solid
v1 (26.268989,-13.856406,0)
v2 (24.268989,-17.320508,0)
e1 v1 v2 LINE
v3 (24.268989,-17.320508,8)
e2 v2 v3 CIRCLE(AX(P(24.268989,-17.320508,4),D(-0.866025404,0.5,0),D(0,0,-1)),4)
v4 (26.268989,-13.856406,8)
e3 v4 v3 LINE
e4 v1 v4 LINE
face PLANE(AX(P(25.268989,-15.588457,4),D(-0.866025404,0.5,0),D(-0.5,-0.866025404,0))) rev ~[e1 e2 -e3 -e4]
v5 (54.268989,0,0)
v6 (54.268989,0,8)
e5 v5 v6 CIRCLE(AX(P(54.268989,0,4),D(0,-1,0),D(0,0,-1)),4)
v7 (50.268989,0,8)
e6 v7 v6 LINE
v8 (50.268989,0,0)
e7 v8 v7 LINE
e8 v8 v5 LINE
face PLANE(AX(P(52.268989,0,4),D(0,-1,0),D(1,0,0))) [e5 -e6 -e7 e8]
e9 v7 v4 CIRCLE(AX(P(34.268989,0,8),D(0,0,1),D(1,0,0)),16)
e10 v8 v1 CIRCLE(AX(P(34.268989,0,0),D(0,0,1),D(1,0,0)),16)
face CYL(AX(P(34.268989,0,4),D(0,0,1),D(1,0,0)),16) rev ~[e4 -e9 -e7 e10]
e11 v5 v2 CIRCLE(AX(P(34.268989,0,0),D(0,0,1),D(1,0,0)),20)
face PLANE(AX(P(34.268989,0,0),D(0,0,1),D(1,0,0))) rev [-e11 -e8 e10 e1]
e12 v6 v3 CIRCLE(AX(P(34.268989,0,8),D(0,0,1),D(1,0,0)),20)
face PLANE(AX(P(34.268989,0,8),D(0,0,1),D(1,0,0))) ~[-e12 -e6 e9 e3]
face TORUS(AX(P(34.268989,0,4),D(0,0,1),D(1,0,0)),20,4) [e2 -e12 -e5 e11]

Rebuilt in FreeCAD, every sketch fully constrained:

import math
import FreeCAD as App
import Part
import Sketcher

doc = App.newDocument("Part")
params = doc.addObject("Spreadsheet::Sheet", "Params")
for row, (alias, value) in enumerate([
    ("sketch1_radius", "4 mm"),
    ("sketch1_width", "4 mm"),
    ("revolution_angle", "240 deg"),
], start=1):
    params.set(f"A{row}", alias)
    params.set(f"B{row}", "=" + value)
    params.setAlias(f"B{row}", alias)

body = doc.addObject("PartDesign::Body", "Body")

# Sketch on XZ plane
sketch1 = doc.addObject("Sketcher::SketchObject", "Sketch")
body.addObject(sketch1)
sketch1.AttachmentSupport = (doc.XZ_Plane, [""])
sketch1.MapMode = "FlatFace"
sketch1.addGeometry([
    Part.LineSegment(App.Vector(50.3, 8, 0), App.Vector(50.3, 0, 0)),
    Part.LineSegment(App.Vector(50.3, 0, 0), App.Vector(54.3, 0, 0)),
    Part.ArcOfCircle(Part.Circle(App.Vector(54.3, 4, 0), App.Vector(0, 0, 1), 4), math.radians(-90), math.radians(90)),
    Part.LineSegment(App.Vector(54.3, 8, 0), App.Vector(50.3, 8, 0)),
], False)
sketch1.addGeometry(Part.LineSegment(App.Vector(34.3, 0, 0), App.Vector(34.3, 8, 0)), True)  # axis
sketch1.addConstraint([
    Sketcher.Constraint("Coincident", 0, 2, 1, 1),
    Sketcher.Constraint("Tangent", 1, 2, 2, 1),
    Sketcher.Constraint("Tangent", 2, 2, 3, 1),
    Sketcher.Constraint("Coincident", 3, 2, 0, 1),
    Sketcher.Constraint("Vertical", 0),
    Sketcher.Constraint("Horizontal", 1),
    Sketcher.Constraint("Horizontal", 3),
    Sketcher.Constraint("Vertical", 4),
    Sketcher.Constraint("PointOnObject", 0, 2, -1),
    Sketcher.Constraint("PointOnObject", 4, 1, -1),
    Sketcher.Constraint("Horizontal", 3, 2, 4, 2),
    Sketcher.Constraint("Radius", 2, 4.0),
    Sketcher.Constraint("DistanceX", 1, 1, 1, 2, 4.0),
    Sketcher.Constraint("DistanceX", 4, 1, 0, 2, 16.0),
    Sketcher.Constraint("DistanceX", -1, 1, 2, 3, 54.268989),
])
sketch1.setExpression("Constraints[11]", "Params.sketch1_radius")
sketch1.setExpression("Constraints[12]", "Params.sketch1_width")
revolution = doc.addObject("PartDesign::Revolution", "Revolution")
body.addObject(revolution)
revolution.Profile = sketch1
revolution.ReferenceAxis = (sketch1, ["Axis0"])
revolution.setExpression("Angle", "Params.revolution_angle")

doc.recompute()
